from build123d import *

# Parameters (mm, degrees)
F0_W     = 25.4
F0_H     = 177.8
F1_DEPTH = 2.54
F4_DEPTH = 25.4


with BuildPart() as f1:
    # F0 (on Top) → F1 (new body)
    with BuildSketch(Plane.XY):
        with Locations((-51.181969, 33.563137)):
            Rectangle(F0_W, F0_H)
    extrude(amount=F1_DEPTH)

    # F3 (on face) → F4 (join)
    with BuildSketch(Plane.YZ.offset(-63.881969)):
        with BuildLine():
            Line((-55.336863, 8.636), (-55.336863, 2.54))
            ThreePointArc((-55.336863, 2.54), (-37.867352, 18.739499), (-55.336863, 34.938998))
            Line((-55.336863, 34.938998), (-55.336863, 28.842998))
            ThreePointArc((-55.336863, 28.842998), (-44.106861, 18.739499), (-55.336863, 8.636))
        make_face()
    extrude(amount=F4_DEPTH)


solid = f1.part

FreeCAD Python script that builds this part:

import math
import FreeCAD as App
import Part
import Sketcher
Q = App.Units.Quantity


def add_polygon(sketch, points):
    """Adds a closed chain of lines whose ends are joined by coincident constraints."""
    first, n = sketch.GeometryCount, len(points)
    for a, b in zip(points, points[1:] + points[:1]):
        sketch.addGeometry(Part.LineSegment(App.Vector(*a, 0), App.Vector(*b, 0)), False)
    for i in range(n):
        sketch.addConstraint(Sketcher.Constraint("Coincident", first + i, 2, first + (i + 1) % n, 1))

doc = App.newDocument("Part")
params = doc.addObject("Spreadsheet::Sheet", "Params")
for row, (alias, value) in enumerate([
    ("sketch1_width", "1 in"),
    ("sketch1_height", "7 in"),
    ("pad1_length", "0.1 in"),
    ("sketch2_radius", "0.4 in"),
    ("sketch2_height", "0.24 in"),
    ("pad2_length", "1 in"),
], start=1):
    params.set(f"A{row}", alias)
    params.set(f"B{row}", "=" + value)
    params.setAlias(f"B{row}", alias)

body = doc.addObject("PartDesign::Body", "Body")

sketch1 = body.newObject("Sketcher::SketchObject", "Sketch")
sketch1.AttachmentSupport = (doc.getObject("XY_Plane"), [""])
sketch1.MapMode = "FlatFace"
add_polygon(sketch1, [(-64, 122), (-64, -55), (-38, -55), (-38, 122)])
sketch1.addConstraint(Sketcher.Constraint("Vertical", 0))
sketch1.addConstraint(Sketcher.Constraint("Horizontal", 1))
sketch1.addConstraint(Sketcher.Constraint("Vertical", 2))
sketch1.addConstraint(Sketcher.Constraint("Horizontal", 3))
sketch1.addConstraint(Sketcher.Constraint("DistanceX", 1, 1, 1, 2, Q("1 in")))
sketch1.addConstraint(Sketcher.Constraint("DistanceY", 0, 2, 0, 1, Q("7 in")))
sketch1.addConstraint(Sketcher.Constraint("DistanceX", 0, 2, -1, 1, Q("63.881969 mm")))
sketch1.addConstraint(Sketcher.Constraint("DistanceY", 0, 2, -1, 1, Q("55.336863 mm")))
sketch1.setExpression("Constraints[8]", "Params.sketch1_width")
sketch1.setExpression("Constraints[9]", "Params.sketch1_height")
pad1 = body.newObject("PartDesign::Pad", "Pad")
pad1.Profile = sketch1
pad1.setExpression("Length", "Params.pad1_length")

sketch2 = body.newObject("Sketcher::SketchObject", "Sketch001")
sketch2.AttachmentSupport = (doc.getObject("YZ_Plane"), [""])
sketch2.MapMode = "FlatFace"
sketch2.AttachmentOffset = App.Placement(App.Vector(0, 0, -63.881969), App.Rotation())
sketch2.addGeometry(Part.LineSegment(App.Vector(-55, 9, 0), App.Vector(-55, 3, 0)), False)
sketch2.addGeometry(Part.ArcOfCircle(Part.Circle(App.Vector(-54, 19, 0), App.Vector(0, 0, 1), 16), math.radians(-94), math.radians(94)), False)
sketch2.addGeometry(Part.LineSegment(App.Vector(-55, 35, 0), App.Vector(-55, 29, 0)), False)
sketch2.addGeometry(Part.ArcOfCircle(Part.Circle(App.Vector(-54, 19, 0), App.Vector(0, 0, 1), 10), math.radians(-96), math.radians(96)), False)
sketch2.addConstraint(Sketcher.Constraint("Coincident", 0, 2, 1, 1))
sketch2.addConstraint(Sketcher.Constraint("Coincident", 1, 2, 2, 1))
sketch2.addConstraint(Sketcher.Constraint("Coincident", 2, 2, 3, 2))
sketch2.addConstraint(Sketcher.Constraint("Coincident", 3, 1, 0, 1))
sketch2.addConstraint(Sketcher.Constraint("Vertical", 0))
sketch2.addConstraint(Sketcher.Constraint("Vertical", 2))
sketch2.addConstraint(Sketcher.Constraint("Horizontal", 1, 3, 3, 3))
sketch2.addConstraint(Sketcher.Constraint("Vertical", 0, 2, 1, 2))
sketch2.addConstraint(Sketcher.Constraint("Radius", 3, Q("0.4 in")))
sketch2.addConstraint(Sketcher.Constraint("DistanceY", 0, 2, 0, 1, Q("0.24 in")))
sketch2.addConstraint(Sketcher.Constraint("DistanceY", -1, 1, 0, 2, Q("0.1 in")))
sketch2.addConstraint(Sketcher.Constraint("Radius", 1, Q("16.245663 mm")))
sketch2.addConstraint(Sketcher.Constraint("DistanceY", -1, 1, 1, 3, Q("18.739499 mm")))
sketch2.addConstraint(Sketcher.Constraint("DistanceX", 3, 3, -1, 1, Q("54.266861 mm")))
sketch2.setExpression("Constraints[8]", "Params.sketch2_radius")
sketch2.setExpression("Constraints[9]", "Params.sketch2_height")
pad2 = body.newObject("PartDesign::Pad", "Pad001")
pad2.Profile = sketch2
pad2.setExpression("Length", "Params.pad2_length")

doc.recompute()
